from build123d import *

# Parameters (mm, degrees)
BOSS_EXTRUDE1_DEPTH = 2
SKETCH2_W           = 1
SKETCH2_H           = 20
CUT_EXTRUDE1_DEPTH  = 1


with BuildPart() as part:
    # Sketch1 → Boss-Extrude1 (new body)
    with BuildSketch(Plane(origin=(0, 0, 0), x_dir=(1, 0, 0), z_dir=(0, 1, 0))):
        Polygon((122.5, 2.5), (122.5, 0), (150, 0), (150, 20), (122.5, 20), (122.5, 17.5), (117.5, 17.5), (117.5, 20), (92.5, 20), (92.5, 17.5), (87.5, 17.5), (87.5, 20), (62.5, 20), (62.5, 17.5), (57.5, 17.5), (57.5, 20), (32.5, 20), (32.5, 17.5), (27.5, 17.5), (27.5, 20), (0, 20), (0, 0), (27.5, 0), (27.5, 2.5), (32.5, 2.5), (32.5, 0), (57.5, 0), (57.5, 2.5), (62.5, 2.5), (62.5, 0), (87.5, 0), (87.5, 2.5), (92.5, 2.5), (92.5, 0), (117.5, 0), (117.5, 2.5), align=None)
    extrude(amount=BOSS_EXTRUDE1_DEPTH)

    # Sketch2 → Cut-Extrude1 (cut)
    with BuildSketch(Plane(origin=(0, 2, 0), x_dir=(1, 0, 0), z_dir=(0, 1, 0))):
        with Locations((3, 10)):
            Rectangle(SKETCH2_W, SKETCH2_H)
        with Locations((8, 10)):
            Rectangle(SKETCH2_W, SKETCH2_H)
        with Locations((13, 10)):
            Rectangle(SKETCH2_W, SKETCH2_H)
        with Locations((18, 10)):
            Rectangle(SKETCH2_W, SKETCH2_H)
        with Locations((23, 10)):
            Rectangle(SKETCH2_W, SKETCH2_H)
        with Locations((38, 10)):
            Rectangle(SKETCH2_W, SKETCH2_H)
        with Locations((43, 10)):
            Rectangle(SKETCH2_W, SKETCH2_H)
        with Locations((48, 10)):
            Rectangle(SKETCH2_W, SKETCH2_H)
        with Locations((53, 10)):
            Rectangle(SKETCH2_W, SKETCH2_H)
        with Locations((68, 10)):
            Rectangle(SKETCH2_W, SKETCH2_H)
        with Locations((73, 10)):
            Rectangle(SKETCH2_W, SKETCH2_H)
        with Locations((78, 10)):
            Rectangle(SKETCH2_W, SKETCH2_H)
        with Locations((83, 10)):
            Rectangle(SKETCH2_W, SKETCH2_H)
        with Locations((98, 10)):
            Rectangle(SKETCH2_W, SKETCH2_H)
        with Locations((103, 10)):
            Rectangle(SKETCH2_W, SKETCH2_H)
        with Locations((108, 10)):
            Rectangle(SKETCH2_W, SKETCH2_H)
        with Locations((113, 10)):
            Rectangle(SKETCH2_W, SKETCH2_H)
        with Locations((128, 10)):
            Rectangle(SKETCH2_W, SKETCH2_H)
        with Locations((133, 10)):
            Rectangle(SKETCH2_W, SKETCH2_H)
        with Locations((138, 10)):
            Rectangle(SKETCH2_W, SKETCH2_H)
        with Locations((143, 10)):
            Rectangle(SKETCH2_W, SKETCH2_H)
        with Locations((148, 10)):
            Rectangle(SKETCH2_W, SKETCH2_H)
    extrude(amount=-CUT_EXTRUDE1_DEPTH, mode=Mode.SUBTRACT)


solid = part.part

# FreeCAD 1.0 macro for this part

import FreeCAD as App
import Part
import Sketcher
from FreeCAD import Vector


def add_polygon(sketch, points):
    """Adds a closed chain of lines whose ends are joined by coincident constraints."""
    first, n = sketch.GeometryCount, len(points)
    for a, b in zip(points, points[1:] + points[:1]):
        sketch.addGeometry(Part.LineSegment(App.Vector(*a, 0), App.Vector(*b, 0)), False)
    for i in range(n):
        sketch.addConstraint(Sketcher.Constraint("Coincident", first + i, 2, first + (i + 1) % n, 1))

doc = App.newDocument("Part")
body = doc.addObject("PartDesign::Body", "Body")

# Sketch on XZ plane
sketch1 = body.newObject("Sketcher::SketchObject", "Sketch")
sketch1.AttachmentSupport = (doc.getObject("XZ_Plane"), [""])
sketch1.MapMode = "FlatFace"
add_polygon(sketch1, [(122.5, -2.5), (122.5, 0), (150, 0), (150, -20), (122.5, -20), (122.5, -17.5), (117.5, -17.5), (117.5, -20), (92.5, -20), (92.5, -17.5), (87.5, -17.5), (87.5, -20), (62.5, -20), (62.5, -17.5), (57.5, -17.5), (57.5, -20), (32.5, -20), (32.5, -17.5), (27.5, -17.5), (27.5, -20), (0, -20), (0, 0), (27.5, 0), (27.5, -2.5), (32.5, -2.5), (32.5, 0), (57.5, 0), (57.5, -2.5), (62.5, -2.5), (62.5, 0), (87.5, 0), (87.5, -2.5), (92.5, -2.5), (92.5, 0), (117.5, 0), (117.5, -2.5)])  # lines 0-35
sketch1.addConstraint(Sketcher.Constraint("Vertical", 0))
sketch1.addConstraint(Sketcher.Constraint("Horizontal", 1))
sketch1.addConstraint(Sketcher.Constraint("Vertical", 2))
sketch1.addConstraint(Sketcher.Constraint("Horizontal", 3))
sketch1.addConstraint(Sketcher.Constraint("Vertical", 4))
sketch1.addConstraint(Sketcher.Constraint("Horizontal", 5))
sketch1.addConstraint(Sketcher.Constraint("Vertical", 6))
sketch1.addConstraint(Sketcher.Constraint("Horizontal", 7))
sketch1.addConstraint(Sketcher.Constraint("Vertical", 8))
sketch1.addConstraint(Sketcher.Constraint("Horizontal", 9))
sketch1.addConstraint(Sketcher.Constraint("Vertical", 10))
sketch1.addConstraint(Sketcher.Constraint("Horizontal", 11))
sketch1.addConstraint(Sketcher.Constraint("Vertical", 12))
sketch1.addConstraint(Sketcher.Constraint("Horizontal", 13))
sketch1.addConstraint(Sketcher.Constraint("Vertical", 14))
sketch1.addConstraint(Sketcher.Constraint("Horizontal", 15))
sketch1.addConstraint(Sketcher.Constraint("Vertical", 16))
sketch1.addConstraint(Sketcher.Constraint("Horizontal", 17))
sketch1.addConstraint(Sketcher.Constraint("Vertical", 18))
sketch1.addConstraint(Sketcher.Constraint("Horizontal", 19))
sketch1.addConstraint(Sketcher.Constraint("Vertical", 20))
sketch1.addConstraint(Sketcher.Constraint("Horizontal", 21))
sketch1.addConstraint(Sketcher.Constraint("Vertical", 22))
sketch1.addConstraint(Sketcher.Constraint("Horizontal", 23))
sketch1.addConstraint(Sketcher.Constraint("Vertical", 24))
sketch1.addConstraint(Sketcher.Constraint("Horizontal", 25))
sketch1.addConstraint(Sketcher.Constraint("Vertical", 26))
sketch1.addConstraint(Sketcher.Constraint("Horizontal", 27))
sketch1.addConstraint(Sketcher.Constraint("Vertical", 28))
sketch1.addConstraint(Sketcher.Constraint("Horizontal", 29))
sketch1.addConstraint(Sketcher.Constraint("Vertical", 30))
sketch1.addConstraint(Sketcher.Constraint("Horizontal", 31))
sketch1.addConstraint(Sketcher.Constraint("Vertical", 32))
sketch1.addConstraint(Sketcher.Constraint("Horizontal", 33))
sketch1.addConstraint(Sketcher.Constraint("Vertical", 34))
sketch1.addConstraint(Sketcher.Constraint("Horizontal", 35))
sketch1.addConstraint(Sketcher.Constraint("Coincident", 20, 2, -1, 1))
sketch1.addConstraint(Sketcher.Constraint("PointOnObject", 0, 2, -1))
sketch1.addConstraint(Sketcher.Constraint("PointOnObject", 24, 2, -1))
sketch1.addConstraint(Sketcher.Constraint("PointOnObject", 28, 2, -1))
sketch1.addConstraint(Sketcher.Constraint("PointOnObject", 32, 2, -1))
sketch1.addConstraint(Sketcher.Constraint("Horizontal", 3, 2, 6, 2))
sketch1.addConstraint(Sketcher.Constraint("Horizontal", 5, 2, 8, 2))
sketch1.addConstraint(Sketcher.Constraint("Horizontal", 7, 2, 10, 2))
sketch1.addConstraint(Sketcher.Constraint("Horizontal", 9, 2, 12, 2))
sketch1.addConstraint(Sketcher.Constraint("Horizontal", 11, 2, 14, 2))
sketch1.addConstraint(Sketcher.Constraint("Horizontal", 13, 2, 16, 2))
sketch1.addConstraint(Sketcher.Constraint("Horizontal", 15, 2, 18, 2))
sketch1.addConstraint(Sketcher.Constraint("Horizontal", 23, 2, 26, 2))
sketch1.addConstraint(Sketcher.Constraint("Horizontal", 27, 2, 30, 2))
sketch1.addConstraint(Sketcher.Constraint("Horizontal", 31, 2, 34, 2))
sketch1.addConstraint(Sketcher.Constraint("Vertical", 0, 2, 3, 2))
sketch1.addConstraint(Sketcher.Constraint("Vertical", 18, 2, 21, 2))
sketch1.addConstraint(Sketcher.Constraint("Vertical", 16, 2, 23, 2))
sketch1.addConstraint(Sketcher.Constraint("Vertical", 14, 2, 25, 2))
sketch1.addConstraint(Sketcher.Constraint("Vertical", 12, 2, 27, 2))
sketch1.addConstraint(Sketcher.Constraint("Vertical", 10, 2, 29, 2))
sketch1.addConstraint(Sketcher.Constraint("Vertical", 8, 2, 31, 2))
sketch1.addConstraint(Sketcher.Constraint("Vertical", 6, 2, 33, 2))
sketch1.addConstraint(Sketcher.Constraint("Equal", 5, 9))
sketch1.addConstraint(Sketcher.Constraint("Equal", 7, 11))
sketch1.addConstraint(Sketcher.Constraint("Equal", 9, 13))
sketch1.addConstraint(Sketcher.Constraint("Equal", 11, 15))
sketch1.addConstraint(Sketcher.Constraint("Equal", 13, 17))
sketch1.addConstraint(Sketcher.Constraint("Equal", 3, 19))
sketch1.addConstraint(Sketcher.Constraint("Equal", 0, 4))
sketch1.addConstraint(Sketcher.Constraint("DistanceX", 5, 2, 5, 1, 5.0))
sketch1.addConstraint(Sketcher.Constraint("DistanceX", 7, 2, 7, 1, 25.0))
sketch1.addConstraint(Sketcher.Constraint("DistanceY", 2, 2, 2, 1, 20.0))
sketch1.addConstraint(Sketcher.Constraint("DistanceX", 1, 1, 1, 2, 27.5))
sketch1.addConstraint(Sketcher.Constraint("DistanceY", 0, 1, 0, 2, 2.5))
pad1 = body.newObject("PartDesign::Pad", "Pad")
pad1.Profile = sketch1
pad1.Length = 2
pad1.Reversed = True

# Sketch on XZ plane
sketch2 = body.newObject("Sketcher::SketchObject", "Sketch001")
sketch2.AttachmentSupport = (doc.getObject("XZ_Plane"), [""])
sketch2.MapMode = "FlatFace"
sketch2.AttachmentOffset = App.Placement(Vector(0, 0, -2), App.Rotation())
add_polygon(sketch2, [(2.5, -20), (2.5, 0), (3.5, 0), (3.5, -20)])  # lines 0-3
add_polygon(sketch2, [(7.5, -20), (7.5, 0), (8.5, 0), (8.5, -20)])  # lines 4-7
add_polygon(sketch2, [(12.5, -20), (12.5, 0), (13.5, 0), (13.5, -20)])  # lines 8-11
add_polygon(sketch2, [(17.5, -20), (17.5, 0), (18.5, 0), (18.5, -20)])  # lines 12-15
add_polygon(sketch2, [(22.5, -20), (22.5, 0), (23.5, 0), (23.5, -20)])  # lines 16-19
add_polygon(sketch2, [(37.5, -20), (37.5, 0), (38.5, 0), (38.5, -20)])  # lines 20-23
add_polygon(sketch2, [(42.5, -20), (42.5, 0), (43.5, 0), (43.5, -20)])  # lines 24-27
add_polygon(sketch2, [(47.5, -20), (47.5, 0), (48.5, 0), (48.5, -20)])  # lines 28-31
add_polygon(sketch2, [(52.5, -20), (52.5, 0), (53.5, 0), (53.5, -20)])  # lines 32-35
add_polygon(sketch2, [(67.5, -20), (67.5, 0), (68.5, 0), (68.5, -20)])  # lines 36-39
add_polygon(sketch2, [(72.5, -20), (72.5, 0), (73.5, 0), (73.5, -20)])  # lines 40-43
add_polygon(sketch2, [(77.5, -20), (77.5, 0), (78.5, 0), (78.5, -20)])  # lines 44-47
add_polygon(sketch2, [(82.5, -20), (82.5, 0), (83.5, 0), (83.5, -20)])  # lines 48-51
add_polygon(sketch2, [(97.5, -20), (97.5, 0), (98.5, 0), (98.5, -20)])  # lines 52-55
add_polygon(sketch2, [(102.5, -20), (102.5, 0), (103.5, 0), (103.5, -20)])  # lines 56-59
add_polygon(sketch2, [(107.5, -20), (107.5, 0), (108.5, 0), (108.5, -20)])  # lines 60-63
add_polygon(sketch2, [(112.5, -20), (112.5, 0), (113.5, 0), (113.5, -20)])  # lines 64-67
add_polygon(sketch2, [(127.5, -20), (127.5, 0), (128.5, 0), (128.5, -20)])  # lines 68-71
add_polygon(sketch2, [(132.5, -20), (132.5, 0), (133.5, 0), (133.5, -20)])  # lines 72-75
add_polygon(sketch2, [(137.5, -20), (137.5, 0), (138.5, 0), (138.5, -20)])  # lines 76-79
add_polygon(sketch2, [(142.5, -20), (142.5, 0), (143.5, 0), (143.5, -20)])  # lines 80-83
add_polygon(sketch2, [(147.5, -20), (147.5, 0), (148.5, 0), (148.5, -20)])  # lines 84-87
sketch2.addConstraint(Sketcher.Constraint("Vertical", 0))
sketch2.addConstraint(Sketcher.Constraint("Horizontal", 1))
sketch2.addConstraint(Sketcher.Constraint("Vertical", 2))
sketch2.addConstraint(Sketcher.Constraint("Horizontal", 3))
sketch2.addConstraint(Sketcher.Constraint("Vertical", 4))
sketch2.addConstraint(Sketcher.Constraint("Horizontal", 5))
sketch2.addConstraint(Sketcher.Constraint("Vertical", 6))
sketch2.addConstraint(Sketcher.Constraint("Horizontal", 7))
sketch2.addConstraint(Sketcher.Constraint("Vertical", 8))
sketch2.addConstraint(Sketcher.Constraint("Horizontal", 9))
sketch2.addConstraint(Sketcher.Constraint("Vertical", 10))
sketch2.addConstraint(Sketcher.Constraint("Horizontal", 11))
sketch2.addConstraint(Sketcher.Constraint("Vertical", 12))
sketch2.addConstraint(Sketcher.Constraint("Horizontal", 13))
sketch2.addConstraint(Sketcher.Constraint("Vertical", 14))
sketch2.addConstraint(Sketcher.Constraint("Horizontal", 15))
sketch2.addConstraint(Sketcher.Constraint("Vertical", 16))
sketch2.addConstraint(Sketcher.Constraint("Horizontal", 17))
sketch2.addConstraint(Sketcher.Constraint("Vertical", 18))
sketch2.addConstraint(Sketcher.Constraint("Horizontal", 19))
sketch2.addConstraint(Sketcher.Constraint("Vertical", 20))
sketch2.addConstraint(Sketcher.Constraint("Horizontal", 21))
sketch2.addConstraint(Sketcher.Constraint("Vertical", 22))
sketch2.addConstraint(Sketcher.Constraint("Horizontal", 23))
sketch2.addConstraint(Sketcher.Constraint("Vertical", 24))
sketch2.addConstraint(Sketcher.Constraint("Horizontal", 25))
sketch2.addConstraint(Sketcher.Constraint("Vertical", 26))
sketch2.addConstraint(Sketcher.Constraint("Horizontal", 27))
sketch2.addConstraint(Sketcher.Constraint("Vertical", 28))
sketch2.addConstraint(Sketcher.Constraint("Horizontal", 29))
sketch2.addConstraint(Sketcher.Constraint("Vertical", 30))
sketch2.addConstraint(Sketcher.Constraint("Horizontal", 31))
sketch2.addConstraint(Sketcher.Constraint("Vertical", 32))
sketch2.addConstraint(Sketcher.Constraint("Horizontal", 33))
sketch2.addConstraint(Sketcher.Constraint("Vertical", 34))
sketch2.addConstraint(Sketcher.Constraint("Horizontal", 35))
sketch2.addConstraint(Sketcher.Constraint("Vertical", 36))
sketch2.addConstraint(Sketcher.Constraint("Horizontal", 37))
sketch2.addConstraint(Sketcher.Constraint("Vertical", 38))
sketch2.addConstraint(Sketcher.Constraint("Horizontal", 39))
sketch2.addConstraint(Sketcher.Constraint("Vertical", 40))
sketch2.addConstraint(Sketcher.Constraint("Horizontal", 41))
sketch2.addConstraint(Sketcher.Constraint("Vertical", 42))
sketch2.addConstraint(Sketcher.Constraint("Horizontal", 43))
sketch2.addConstraint(Sketcher.Constraint("Vertical", 44))
sketch2.addConstraint(Sketcher.Constraint("Horizontal", 45))
sketch2.addConstraint(Sketcher.Constraint("Vertical", 46))
sketch2.addConstraint(Sketcher.Constraint("Horizontal", 47))
sketch2.addConstraint(Sketcher.Constraint("Vertical", 48))
sketch2.addConstraint(Sketcher.Constraint("Horizontal", 49))
sketch2.addConstraint(Sketcher.Constraint("Vertical", 50))
sketch2.addConstraint(Sketcher.Constraint("Horizontal", 51))
sketch2.addConstraint(Sketcher.Constraint("Vertical", 52))
sketch2.addConstraint(Sketcher.Constraint("Horizontal", 53))
sketch2.addConstraint(Sketcher.Constraint("Vertical", 54))
sketch2.addConstraint(Sketcher.Constraint("Horizontal", 55))
sketch2.addConstraint(Sketcher.Constraint("Vertical", 56))
sketch2.addConstraint(Sketcher.Constraint("Horizontal", 57))
sketch2.addConstraint(Sketcher.Constraint("Vertical", 58))
sketch2.addConstraint(Sketcher.Constraint("Horizontal", 59))
sketch2.addConstraint(Sketcher.Constraint("Vertical", 60))
sketch2.addConstraint(Sketcher.Constraint("Horizontal", 61))
sketch2.addConstraint(Sketcher.Constraint("Vertical", 62))
sketch2.addConstraint(Sketcher.Constraint("Horizontal", 63))
sketch2.addConstraint(Sketcher.Constraint("Vertical", 64))
sketch2.addConstraint(Sketcher.Constraint("Horizontal", 65))
sketch2.addConstraint(Sketcher.Constraint("Vertical", 66))
sketch2.addConstraint(Sketcher.Constraint("Horizontal", 67))
sketch2.addConstraint(Sketcher.Constraint("Vertical", 68))
sketch2.addConstraint(Sketcher.Constraint("Horizontal", 69))
sketch2.addConstraint(Sketcher.Constraint("Vertical", 70))
sketch2.addConstraint(Sketcher.Constraint("Horizontal", 71))
sketch2.addConstraint(Sketcher.Constraint("Vertical", 72))
sketch2.addConstraint(Sketcher.Constraint("Horizontal", 73))
sketch2.addConstraint(Sketcher.Constraint("Vertical", 74))
sketch2.addConstraint(Sketcher.Constraint("Horizontal", 75))
sketch2.addConstraint(Sketcher.Constraint("Vertical", 76))
sketch2.addConstraint(Sketcher.Constraint("Horizontal", 77))
sketch2.addConstraint(Sketcher.Constraint("Vertical", 78))
sketch2.addConstraint(Sketcher.Constraint("Horizontal", 79))
sketch2.addConstraint(Sketcher.Constraint("Vertical", 80))
sketch2.addConstraint(Sketcher.Constraint("Horizontal", 81))
sketch2.addConstraint(Sketcher.Constraint("Vertical", 82))
sketch2.addConstraint(Sketcher.Constraint("Horizontal", 83))
sketch2.addConstraint(Sketcher.Constraint("Vertical", 84))
sketch2.addConstraint(Sketcher.Constraint("Horizontal", 85))
sketch2.addConstraint(Sketcher.Constraint("Vertical", 86))
sketch2.addConstraint(Sketcher.Constraint("Horizontal", 87))
sketch2.addConstraint(Sketcher.Constraint("PointOnObject", 0, 2, -1))
sketch2.addConstraint(Sketcher.Constraint("PointOnObject", 4, 2, -1))
sketch2.addConstraint(Sketcher.Constraint("PointOnObject", 8, 2, -1))
sketch2.addConstraint(Sketcher.Constraint("PointOnObject", 12, 2, -1))
sketch2.addConstraint(Sketcher.Constraint("PointOnObject", 16, 2, -1))
sketch2.addConstraint(Sketcher.Constraint("PointOnObject", 20, 2, -1))
sketch2.addConstraint(Sketcher.Constraint("PointOnObject", 24, 2, -1))
sketch2.addConstraint(Sketcher.Constraint("PointOnObject", 28, 2, -1))
sketch2.addConstraint(Sketcher.Constraint("PointOnObject", 32, 2, -1))
sketch2.addConstraint(Sketcher.Constraint("PointOnObject", 36, 2, -1))
sketch2.addConstraint(Sketcher.Constraint("PointOnObject", 40, 2, -1))
sketch2.addConstraint(Sketcher.Constraint("PointOnObject", 44, 2, -1))
sketch2.addConstraint(Sketcher.Constraint("PointOnObject", 48, 2, -1))
sketch2.addConstraint(Sketcher.Constraint("PointOnObject", 52, 2, -1))
sketch2.addConstraint(Sketcher.Constraint("PointOnObject", 56, 2, -1))
sketch2.addConstraint(Sketcher.Constraint("PointOnObject", 60, 2, -1))
sketch2.addConstraint(Sketcher.Constraint("PointOnObject", 64, 2, -1))
sketch2.addConstraint(Sketcher.Constraint("PointOnObject", 68, 2, -1))
sketch2.addConstraint(Sketcher.Constraint("PointOnObject", 72, 2, -1))
sketch2.addConstraint(Sketcher.Constraint("PointOnObject", 76, 2, -1))
sketch2.addConstraint(Sketcher.Constraint("PointOnObject", 80, 2, -1))
sketch2.addConstraint(Sketcher.Constraint("PointOnObject", 84, 2, -1))
sketch2.addConstraint(Sketcher.Constraint("Horizontal", 3, 2, 6, 2))
sketch2.addConstraint(Sketcher.Constraint("Horizontal", 7, 2, 10, 2))
sketch2.addConstraint(Sketcher.Constraint("Horizontal", 11, 2, 14, 2))
sketch2.addConstraint(Sketcher.Constraint("Horizontal", 15, 2, 18, 2))
sketch2.addConstraint(Sketcher.Constraint("Horizontal", 19, 2, 22, 2))
sketch2.addConstraint(Sketcher.Constraint("Horizontal", 23, 2, 26, 2))
sketch2.addConstraint(Sketcher.Constraint("Horizontal", 27, 2, 30, 2))
sketch2.addConstraint(Sketcher.Constraint("Horizontal", 31, 2, 34, 2))
sketch2.addConstraint(Sketcher.Constraint("Horizontal", 35, 2, 38, 2))
sketch2.addConstraint(Sketcher.Constraint("Horizontal", 39, 2, 42, 2))
sketch2.addConstraint(Sketcher.Constraint("Horizontal", 43, 2, 46, 2))
sketch2.addConstraint(Sketcher.Constraint("Horizontal", 47, 2, 50, 2))
sketch2.addConstraint(Sketcher.Constraint("Horizontal", 51, 2, 54, 2))
sketch2.addConstraint(Sketcher.Constraint("Horizontal", 55, 2, 58, 2))
sketch2.addConstraint(Sketcher.Constraint("Horizontal", 59, 2, 62, 2))
sketch2.addConstraint(Sketcher.Constraint("Horizontal", 63, 2, 66, 2))
sketch2.addConstraint(Sketcher.Constraint("Horizontal", 67, 2, 70, 2))
sketch2.addConstraint(Sketcher.Constraint("Horizontal", 71, 2, 74, 2))
sketch2.addConstraint(Sketcher.Constraint("Horizontal", 75, 2, 78, 2))
sketch2.addConstraint(Sketcher.Constraint("Horizontal", 79, 2, 82, 2))
sketch2.addConstraint(Sketcher.Constraint("Horizontal", 83, 2, 86, 2))
sketch2.addConstraint(Sketcher.Constraint("Equal", 3, 5))
sketch2.addConstraint(Sketcher.Constraint("Equal", 7, 9))
sketch2.addConstraint(Sketcher.Constraint("Equal", 11, 13))
sketch2.addConstraint(Sketcher.Constraint("Equal", 15, 17))
sketch2.addConstraint(Sketcher.Constraint("Equal", 19, 21))
sketch2.addConstraint(Sketcher.Constraint("Equal", 23, 25))
sketch2.addConstraint(Sketcher.Constraint("Equal", 27, 29))
sketch2.addConstraint(Sketcher.Constraint("Equal", 31, 33))
sketch2.addConstraint(Sketcher.Constraint("Equal", 35, 37))
sketch2.addConstraint(Sketcher.Constraint("Equal", 39, 41))
sketch2.addConstraint(Sketcher.Constraint("Equal", 43, 45))
sketch2.addConstraint(Sketcher.Constraint("Equal", 47, 49))
sketch2.addConstraint(Sketcher.Constraint("Equal", 51, 53))
sketch2.addConstraint(Sketcher.Constraint("Equal", 55, 57))
sketch2.addConstraint(Sketcher.Constraint("Equal", 59, 61))
sketch2.addConstraint(Sketcher.Constraint("Equal", 63, 65))
sketch2.addConstraint(Sketcher.Constraint("Equal", 67, 69))
sketch2.addConstraint(Sketcher.Constraint("Equal", 71, 73))
sketch2.addConstraint(Sketcher.Constraint("Equal", 75, 77))
sketch2.addConstraint(Sketcher.Constraint("Equal", 79, 81))
sketch2.addConstraint(Sketcher.Constraint("Equal", 83, 85))
sketch2.addConstraint(Sketcher.Constraint("DistanceX", 1, 1, 1, 2, 1.0))
sketch2.addConstraint(Sketcher.Constraint("DistanceY", 0, 1, 0, 2, 20.0))
sketch2.addConstraint(Sketcher.Constraint("DistanceX", -1, 1, 0, 2, 2.5))
sketch2.addConstraint(Sketcher.Constraint("DistanceX", -1, 1, 4, 2, 7.5))
sketch2.addConstraint(Sketcher.Constraint("DistanceX", -1, 1, 8, 2, 12.5))
sketch2.addConstraint(Sketcher.Constraint("DistanceX", -1, 1, 12, 2, 17.5))
sketch2.addConstraint(Sketcher.Constraint("DistanceX", -1, 1, 16, 2, 22.5))
sketch2.addConstraint(Sketcher.Constraint("DistanceX", -1, 1, 20, 2, 37.5))
sketch2.addConstraint(Sketcher.Constraint("DistanceX", -1, 1, 24, 2, 42.5))
sketch2.addConstraint(Sketcher.Constraint("DistanceX", -1, 1, 28, 2, 47.5))
sketch2.addConstraint(Sketcher.Constraint("DistanceX", -1, 1, 32, 2, 52.5))
sketch2.addConstraint(Sketcher.Constraint("DistanceX", -1, 1, 36, 2, 67.5))
sketch2.addConstraint(Sketcher.Constraint("DistanceX", -1, 1, 40, 2, 72.5))
sketch2.addConstraint(Sketcher.Constraint("DistanceX", -1, 1, 44, 2, 77.5))
sketch2.addConstraint(Sketcher.Constraint("DistanceX", -1, 1, 48, 2, 82.5))
sketch2.addConstraint(Sketcher.Constraint("DistanceX", -1, 1, 52, 2, 97.5))
sketch2.addConstraint(Sketcher.Constraint("DistanceX", -1, 1, 56, 2, 102.5))
sketch2.addConstraint(Sketcher.Constraint("DistanceX", -1, 1, 60, 2, 107.5))
sketch2.addConstraint(Sketcher.Constraint("DistanceX", -1, 1, 64, 2, 112.5))
sketch2.addConstraint(Sketcher.Constraint("DistanceX", -1, 1, 68, 2, 127.5))
sketch2.addConstraint(Sketcher.Constraint("DistanceX", -1, 1, 72, 2, 132.5))
sketch2.addConstraint(Sketcher.Constraint("DistanceX", -1, 1, 76, 2, 137.5))
sketch2.addConstraint(Sketcher.Constraint("DistanceX", -1, 1, 80, 2, 142.5))
sketch2.addConstraint(Sketcher.Constraint("DistanceX", -1, 1, 84, 2, 147.5))
pocket1 = body.newObject("PartDesign::Pocket", "Pocket")
pocket1.Profile = sketch2
pocket1.Length = 1
pocket1.Reversed = True

doc.recompute()
